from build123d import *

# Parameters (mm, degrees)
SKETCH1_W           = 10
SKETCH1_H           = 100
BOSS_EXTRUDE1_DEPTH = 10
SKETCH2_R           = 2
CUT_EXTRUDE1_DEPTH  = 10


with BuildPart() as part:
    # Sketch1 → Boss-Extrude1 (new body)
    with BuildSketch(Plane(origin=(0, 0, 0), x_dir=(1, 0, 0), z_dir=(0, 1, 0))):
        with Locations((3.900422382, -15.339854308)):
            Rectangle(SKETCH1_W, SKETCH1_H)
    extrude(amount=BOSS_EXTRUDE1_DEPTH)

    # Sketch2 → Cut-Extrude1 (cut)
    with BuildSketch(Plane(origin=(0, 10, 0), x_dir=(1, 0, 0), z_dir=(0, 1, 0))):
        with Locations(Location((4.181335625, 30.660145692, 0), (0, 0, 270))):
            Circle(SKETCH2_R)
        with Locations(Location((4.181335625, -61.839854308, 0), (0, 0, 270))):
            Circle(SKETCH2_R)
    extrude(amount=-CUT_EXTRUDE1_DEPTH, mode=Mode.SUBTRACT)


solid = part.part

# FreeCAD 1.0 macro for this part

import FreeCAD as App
import Part
import Sketcher

V = App.Vector
Q = App.Units.Quantity

doc = App.newDocument("Part")
body = doc.addObject("PartDesign::Body", "Body")

sketch1 = body.newObject("Sketcher::SketchObject", "Sketch")
sketch1.AttachmentSupport = (doc.getObject("XZ_Plane"), [""])
sketch1.MapMode = "FlatFace"
sketch1.addGeometry([
    Part.LineSegment(V(-1.099578, -34.660146, 0), V(-1.099578, 65.339854, 0)),
    Part.LineSegment(V(-1.099578, 65.339854, 0), V(8.900422, 65.339854, 0)),
    Part.LineSegment(V(8.900422, 65.339854, 0), V(8.900422, -34.660146, 0)),
    Part.LineSegment(V(8.900422, -34.660146, 0), V(-1.099578, -34.660146, 0)),
], False)
sketch1.addConstraint([
    Sketcher.Constraint("Coincident", 0, 2, 1, 1),
    Sketcher.Constraint("Coincident", 1, 2, 2, 1),
    Sketcher.Constraint("Coincident", 2, 2, 3, 1),
    Sketcher.Constraint("Coincident", 3, 2, 0, 1),
    Sketcher.Constraint("Vertical", 0),
    Sketcher.Constraint("Horizontal", 1),
    Sketcher.Constraint("Vertical", 2),
    Sketcher.Constraint("Horizontal", 3),
    Sketcher.Constraint("DistanceX", 1, 1, 1, 2, Q("10 mm")),
    Sketcher.Constraint("DistanceY", 0, 1, 0, 2, Q("100 mm")),
    Sketcher.Constraint("DistanceX", 0, 2, -1, 1, Q("1.099578 mm")),
    Sketcher.Constraint("DistanceY", -1, 1, 0, 2, Q("65.339854 mm")),
])
pad1 = body.newObject("PartDesign::Pad", "Pad")
pad1.Profile = sketch1
pad1.Length = 10
pad1.Reversed = True

sketch2 = body.newObject("Sketcher::SketchObject", "Sketch001")
sketch2.AttachmentSupport = (doc.getObject("XZ_Plane"), [""])
sketch2.MapMode = "FlatFace"
sketch2.AttachmentOffset = App.Placement(V(0, 0, -10), App.Rotation())
sketch2.addGeometry([
    Part.Circle(V(4.181336, -30.660146, 0), V(0, 0, 1), 2),
    Part.Circle(V(4.181336, 61.839854, 0), V(0, 0, 1), 2),
], False)
sketch2.addConstraint([
    Sketcher.Constraint("Equal", 0, 1),
    Sketcher.Constraint("Vertical", 0, 3, 1, 3),
    Sketcher.Constraint("Diameter", 0, Q("4 mm")),
    Sketcher.Constraint("DistanceY", 0, 3, 1, 3, Q("92.5 mm")),
    Sketcher.Constraint("DistanceX", -1, 1, 0, 3, Q("4.181336 mm")),
    Sketcher.Constraint("DistanceY", 0, 3, -1, 1, Q("30.660146 mm")),
])
pocket1 = body.newObject("PartDesign::Pocket", "Pocket")
pocket1.Profile = sketch2
pocket1.Length = 10
pocket1.Reversed = True

doc.recompute()
